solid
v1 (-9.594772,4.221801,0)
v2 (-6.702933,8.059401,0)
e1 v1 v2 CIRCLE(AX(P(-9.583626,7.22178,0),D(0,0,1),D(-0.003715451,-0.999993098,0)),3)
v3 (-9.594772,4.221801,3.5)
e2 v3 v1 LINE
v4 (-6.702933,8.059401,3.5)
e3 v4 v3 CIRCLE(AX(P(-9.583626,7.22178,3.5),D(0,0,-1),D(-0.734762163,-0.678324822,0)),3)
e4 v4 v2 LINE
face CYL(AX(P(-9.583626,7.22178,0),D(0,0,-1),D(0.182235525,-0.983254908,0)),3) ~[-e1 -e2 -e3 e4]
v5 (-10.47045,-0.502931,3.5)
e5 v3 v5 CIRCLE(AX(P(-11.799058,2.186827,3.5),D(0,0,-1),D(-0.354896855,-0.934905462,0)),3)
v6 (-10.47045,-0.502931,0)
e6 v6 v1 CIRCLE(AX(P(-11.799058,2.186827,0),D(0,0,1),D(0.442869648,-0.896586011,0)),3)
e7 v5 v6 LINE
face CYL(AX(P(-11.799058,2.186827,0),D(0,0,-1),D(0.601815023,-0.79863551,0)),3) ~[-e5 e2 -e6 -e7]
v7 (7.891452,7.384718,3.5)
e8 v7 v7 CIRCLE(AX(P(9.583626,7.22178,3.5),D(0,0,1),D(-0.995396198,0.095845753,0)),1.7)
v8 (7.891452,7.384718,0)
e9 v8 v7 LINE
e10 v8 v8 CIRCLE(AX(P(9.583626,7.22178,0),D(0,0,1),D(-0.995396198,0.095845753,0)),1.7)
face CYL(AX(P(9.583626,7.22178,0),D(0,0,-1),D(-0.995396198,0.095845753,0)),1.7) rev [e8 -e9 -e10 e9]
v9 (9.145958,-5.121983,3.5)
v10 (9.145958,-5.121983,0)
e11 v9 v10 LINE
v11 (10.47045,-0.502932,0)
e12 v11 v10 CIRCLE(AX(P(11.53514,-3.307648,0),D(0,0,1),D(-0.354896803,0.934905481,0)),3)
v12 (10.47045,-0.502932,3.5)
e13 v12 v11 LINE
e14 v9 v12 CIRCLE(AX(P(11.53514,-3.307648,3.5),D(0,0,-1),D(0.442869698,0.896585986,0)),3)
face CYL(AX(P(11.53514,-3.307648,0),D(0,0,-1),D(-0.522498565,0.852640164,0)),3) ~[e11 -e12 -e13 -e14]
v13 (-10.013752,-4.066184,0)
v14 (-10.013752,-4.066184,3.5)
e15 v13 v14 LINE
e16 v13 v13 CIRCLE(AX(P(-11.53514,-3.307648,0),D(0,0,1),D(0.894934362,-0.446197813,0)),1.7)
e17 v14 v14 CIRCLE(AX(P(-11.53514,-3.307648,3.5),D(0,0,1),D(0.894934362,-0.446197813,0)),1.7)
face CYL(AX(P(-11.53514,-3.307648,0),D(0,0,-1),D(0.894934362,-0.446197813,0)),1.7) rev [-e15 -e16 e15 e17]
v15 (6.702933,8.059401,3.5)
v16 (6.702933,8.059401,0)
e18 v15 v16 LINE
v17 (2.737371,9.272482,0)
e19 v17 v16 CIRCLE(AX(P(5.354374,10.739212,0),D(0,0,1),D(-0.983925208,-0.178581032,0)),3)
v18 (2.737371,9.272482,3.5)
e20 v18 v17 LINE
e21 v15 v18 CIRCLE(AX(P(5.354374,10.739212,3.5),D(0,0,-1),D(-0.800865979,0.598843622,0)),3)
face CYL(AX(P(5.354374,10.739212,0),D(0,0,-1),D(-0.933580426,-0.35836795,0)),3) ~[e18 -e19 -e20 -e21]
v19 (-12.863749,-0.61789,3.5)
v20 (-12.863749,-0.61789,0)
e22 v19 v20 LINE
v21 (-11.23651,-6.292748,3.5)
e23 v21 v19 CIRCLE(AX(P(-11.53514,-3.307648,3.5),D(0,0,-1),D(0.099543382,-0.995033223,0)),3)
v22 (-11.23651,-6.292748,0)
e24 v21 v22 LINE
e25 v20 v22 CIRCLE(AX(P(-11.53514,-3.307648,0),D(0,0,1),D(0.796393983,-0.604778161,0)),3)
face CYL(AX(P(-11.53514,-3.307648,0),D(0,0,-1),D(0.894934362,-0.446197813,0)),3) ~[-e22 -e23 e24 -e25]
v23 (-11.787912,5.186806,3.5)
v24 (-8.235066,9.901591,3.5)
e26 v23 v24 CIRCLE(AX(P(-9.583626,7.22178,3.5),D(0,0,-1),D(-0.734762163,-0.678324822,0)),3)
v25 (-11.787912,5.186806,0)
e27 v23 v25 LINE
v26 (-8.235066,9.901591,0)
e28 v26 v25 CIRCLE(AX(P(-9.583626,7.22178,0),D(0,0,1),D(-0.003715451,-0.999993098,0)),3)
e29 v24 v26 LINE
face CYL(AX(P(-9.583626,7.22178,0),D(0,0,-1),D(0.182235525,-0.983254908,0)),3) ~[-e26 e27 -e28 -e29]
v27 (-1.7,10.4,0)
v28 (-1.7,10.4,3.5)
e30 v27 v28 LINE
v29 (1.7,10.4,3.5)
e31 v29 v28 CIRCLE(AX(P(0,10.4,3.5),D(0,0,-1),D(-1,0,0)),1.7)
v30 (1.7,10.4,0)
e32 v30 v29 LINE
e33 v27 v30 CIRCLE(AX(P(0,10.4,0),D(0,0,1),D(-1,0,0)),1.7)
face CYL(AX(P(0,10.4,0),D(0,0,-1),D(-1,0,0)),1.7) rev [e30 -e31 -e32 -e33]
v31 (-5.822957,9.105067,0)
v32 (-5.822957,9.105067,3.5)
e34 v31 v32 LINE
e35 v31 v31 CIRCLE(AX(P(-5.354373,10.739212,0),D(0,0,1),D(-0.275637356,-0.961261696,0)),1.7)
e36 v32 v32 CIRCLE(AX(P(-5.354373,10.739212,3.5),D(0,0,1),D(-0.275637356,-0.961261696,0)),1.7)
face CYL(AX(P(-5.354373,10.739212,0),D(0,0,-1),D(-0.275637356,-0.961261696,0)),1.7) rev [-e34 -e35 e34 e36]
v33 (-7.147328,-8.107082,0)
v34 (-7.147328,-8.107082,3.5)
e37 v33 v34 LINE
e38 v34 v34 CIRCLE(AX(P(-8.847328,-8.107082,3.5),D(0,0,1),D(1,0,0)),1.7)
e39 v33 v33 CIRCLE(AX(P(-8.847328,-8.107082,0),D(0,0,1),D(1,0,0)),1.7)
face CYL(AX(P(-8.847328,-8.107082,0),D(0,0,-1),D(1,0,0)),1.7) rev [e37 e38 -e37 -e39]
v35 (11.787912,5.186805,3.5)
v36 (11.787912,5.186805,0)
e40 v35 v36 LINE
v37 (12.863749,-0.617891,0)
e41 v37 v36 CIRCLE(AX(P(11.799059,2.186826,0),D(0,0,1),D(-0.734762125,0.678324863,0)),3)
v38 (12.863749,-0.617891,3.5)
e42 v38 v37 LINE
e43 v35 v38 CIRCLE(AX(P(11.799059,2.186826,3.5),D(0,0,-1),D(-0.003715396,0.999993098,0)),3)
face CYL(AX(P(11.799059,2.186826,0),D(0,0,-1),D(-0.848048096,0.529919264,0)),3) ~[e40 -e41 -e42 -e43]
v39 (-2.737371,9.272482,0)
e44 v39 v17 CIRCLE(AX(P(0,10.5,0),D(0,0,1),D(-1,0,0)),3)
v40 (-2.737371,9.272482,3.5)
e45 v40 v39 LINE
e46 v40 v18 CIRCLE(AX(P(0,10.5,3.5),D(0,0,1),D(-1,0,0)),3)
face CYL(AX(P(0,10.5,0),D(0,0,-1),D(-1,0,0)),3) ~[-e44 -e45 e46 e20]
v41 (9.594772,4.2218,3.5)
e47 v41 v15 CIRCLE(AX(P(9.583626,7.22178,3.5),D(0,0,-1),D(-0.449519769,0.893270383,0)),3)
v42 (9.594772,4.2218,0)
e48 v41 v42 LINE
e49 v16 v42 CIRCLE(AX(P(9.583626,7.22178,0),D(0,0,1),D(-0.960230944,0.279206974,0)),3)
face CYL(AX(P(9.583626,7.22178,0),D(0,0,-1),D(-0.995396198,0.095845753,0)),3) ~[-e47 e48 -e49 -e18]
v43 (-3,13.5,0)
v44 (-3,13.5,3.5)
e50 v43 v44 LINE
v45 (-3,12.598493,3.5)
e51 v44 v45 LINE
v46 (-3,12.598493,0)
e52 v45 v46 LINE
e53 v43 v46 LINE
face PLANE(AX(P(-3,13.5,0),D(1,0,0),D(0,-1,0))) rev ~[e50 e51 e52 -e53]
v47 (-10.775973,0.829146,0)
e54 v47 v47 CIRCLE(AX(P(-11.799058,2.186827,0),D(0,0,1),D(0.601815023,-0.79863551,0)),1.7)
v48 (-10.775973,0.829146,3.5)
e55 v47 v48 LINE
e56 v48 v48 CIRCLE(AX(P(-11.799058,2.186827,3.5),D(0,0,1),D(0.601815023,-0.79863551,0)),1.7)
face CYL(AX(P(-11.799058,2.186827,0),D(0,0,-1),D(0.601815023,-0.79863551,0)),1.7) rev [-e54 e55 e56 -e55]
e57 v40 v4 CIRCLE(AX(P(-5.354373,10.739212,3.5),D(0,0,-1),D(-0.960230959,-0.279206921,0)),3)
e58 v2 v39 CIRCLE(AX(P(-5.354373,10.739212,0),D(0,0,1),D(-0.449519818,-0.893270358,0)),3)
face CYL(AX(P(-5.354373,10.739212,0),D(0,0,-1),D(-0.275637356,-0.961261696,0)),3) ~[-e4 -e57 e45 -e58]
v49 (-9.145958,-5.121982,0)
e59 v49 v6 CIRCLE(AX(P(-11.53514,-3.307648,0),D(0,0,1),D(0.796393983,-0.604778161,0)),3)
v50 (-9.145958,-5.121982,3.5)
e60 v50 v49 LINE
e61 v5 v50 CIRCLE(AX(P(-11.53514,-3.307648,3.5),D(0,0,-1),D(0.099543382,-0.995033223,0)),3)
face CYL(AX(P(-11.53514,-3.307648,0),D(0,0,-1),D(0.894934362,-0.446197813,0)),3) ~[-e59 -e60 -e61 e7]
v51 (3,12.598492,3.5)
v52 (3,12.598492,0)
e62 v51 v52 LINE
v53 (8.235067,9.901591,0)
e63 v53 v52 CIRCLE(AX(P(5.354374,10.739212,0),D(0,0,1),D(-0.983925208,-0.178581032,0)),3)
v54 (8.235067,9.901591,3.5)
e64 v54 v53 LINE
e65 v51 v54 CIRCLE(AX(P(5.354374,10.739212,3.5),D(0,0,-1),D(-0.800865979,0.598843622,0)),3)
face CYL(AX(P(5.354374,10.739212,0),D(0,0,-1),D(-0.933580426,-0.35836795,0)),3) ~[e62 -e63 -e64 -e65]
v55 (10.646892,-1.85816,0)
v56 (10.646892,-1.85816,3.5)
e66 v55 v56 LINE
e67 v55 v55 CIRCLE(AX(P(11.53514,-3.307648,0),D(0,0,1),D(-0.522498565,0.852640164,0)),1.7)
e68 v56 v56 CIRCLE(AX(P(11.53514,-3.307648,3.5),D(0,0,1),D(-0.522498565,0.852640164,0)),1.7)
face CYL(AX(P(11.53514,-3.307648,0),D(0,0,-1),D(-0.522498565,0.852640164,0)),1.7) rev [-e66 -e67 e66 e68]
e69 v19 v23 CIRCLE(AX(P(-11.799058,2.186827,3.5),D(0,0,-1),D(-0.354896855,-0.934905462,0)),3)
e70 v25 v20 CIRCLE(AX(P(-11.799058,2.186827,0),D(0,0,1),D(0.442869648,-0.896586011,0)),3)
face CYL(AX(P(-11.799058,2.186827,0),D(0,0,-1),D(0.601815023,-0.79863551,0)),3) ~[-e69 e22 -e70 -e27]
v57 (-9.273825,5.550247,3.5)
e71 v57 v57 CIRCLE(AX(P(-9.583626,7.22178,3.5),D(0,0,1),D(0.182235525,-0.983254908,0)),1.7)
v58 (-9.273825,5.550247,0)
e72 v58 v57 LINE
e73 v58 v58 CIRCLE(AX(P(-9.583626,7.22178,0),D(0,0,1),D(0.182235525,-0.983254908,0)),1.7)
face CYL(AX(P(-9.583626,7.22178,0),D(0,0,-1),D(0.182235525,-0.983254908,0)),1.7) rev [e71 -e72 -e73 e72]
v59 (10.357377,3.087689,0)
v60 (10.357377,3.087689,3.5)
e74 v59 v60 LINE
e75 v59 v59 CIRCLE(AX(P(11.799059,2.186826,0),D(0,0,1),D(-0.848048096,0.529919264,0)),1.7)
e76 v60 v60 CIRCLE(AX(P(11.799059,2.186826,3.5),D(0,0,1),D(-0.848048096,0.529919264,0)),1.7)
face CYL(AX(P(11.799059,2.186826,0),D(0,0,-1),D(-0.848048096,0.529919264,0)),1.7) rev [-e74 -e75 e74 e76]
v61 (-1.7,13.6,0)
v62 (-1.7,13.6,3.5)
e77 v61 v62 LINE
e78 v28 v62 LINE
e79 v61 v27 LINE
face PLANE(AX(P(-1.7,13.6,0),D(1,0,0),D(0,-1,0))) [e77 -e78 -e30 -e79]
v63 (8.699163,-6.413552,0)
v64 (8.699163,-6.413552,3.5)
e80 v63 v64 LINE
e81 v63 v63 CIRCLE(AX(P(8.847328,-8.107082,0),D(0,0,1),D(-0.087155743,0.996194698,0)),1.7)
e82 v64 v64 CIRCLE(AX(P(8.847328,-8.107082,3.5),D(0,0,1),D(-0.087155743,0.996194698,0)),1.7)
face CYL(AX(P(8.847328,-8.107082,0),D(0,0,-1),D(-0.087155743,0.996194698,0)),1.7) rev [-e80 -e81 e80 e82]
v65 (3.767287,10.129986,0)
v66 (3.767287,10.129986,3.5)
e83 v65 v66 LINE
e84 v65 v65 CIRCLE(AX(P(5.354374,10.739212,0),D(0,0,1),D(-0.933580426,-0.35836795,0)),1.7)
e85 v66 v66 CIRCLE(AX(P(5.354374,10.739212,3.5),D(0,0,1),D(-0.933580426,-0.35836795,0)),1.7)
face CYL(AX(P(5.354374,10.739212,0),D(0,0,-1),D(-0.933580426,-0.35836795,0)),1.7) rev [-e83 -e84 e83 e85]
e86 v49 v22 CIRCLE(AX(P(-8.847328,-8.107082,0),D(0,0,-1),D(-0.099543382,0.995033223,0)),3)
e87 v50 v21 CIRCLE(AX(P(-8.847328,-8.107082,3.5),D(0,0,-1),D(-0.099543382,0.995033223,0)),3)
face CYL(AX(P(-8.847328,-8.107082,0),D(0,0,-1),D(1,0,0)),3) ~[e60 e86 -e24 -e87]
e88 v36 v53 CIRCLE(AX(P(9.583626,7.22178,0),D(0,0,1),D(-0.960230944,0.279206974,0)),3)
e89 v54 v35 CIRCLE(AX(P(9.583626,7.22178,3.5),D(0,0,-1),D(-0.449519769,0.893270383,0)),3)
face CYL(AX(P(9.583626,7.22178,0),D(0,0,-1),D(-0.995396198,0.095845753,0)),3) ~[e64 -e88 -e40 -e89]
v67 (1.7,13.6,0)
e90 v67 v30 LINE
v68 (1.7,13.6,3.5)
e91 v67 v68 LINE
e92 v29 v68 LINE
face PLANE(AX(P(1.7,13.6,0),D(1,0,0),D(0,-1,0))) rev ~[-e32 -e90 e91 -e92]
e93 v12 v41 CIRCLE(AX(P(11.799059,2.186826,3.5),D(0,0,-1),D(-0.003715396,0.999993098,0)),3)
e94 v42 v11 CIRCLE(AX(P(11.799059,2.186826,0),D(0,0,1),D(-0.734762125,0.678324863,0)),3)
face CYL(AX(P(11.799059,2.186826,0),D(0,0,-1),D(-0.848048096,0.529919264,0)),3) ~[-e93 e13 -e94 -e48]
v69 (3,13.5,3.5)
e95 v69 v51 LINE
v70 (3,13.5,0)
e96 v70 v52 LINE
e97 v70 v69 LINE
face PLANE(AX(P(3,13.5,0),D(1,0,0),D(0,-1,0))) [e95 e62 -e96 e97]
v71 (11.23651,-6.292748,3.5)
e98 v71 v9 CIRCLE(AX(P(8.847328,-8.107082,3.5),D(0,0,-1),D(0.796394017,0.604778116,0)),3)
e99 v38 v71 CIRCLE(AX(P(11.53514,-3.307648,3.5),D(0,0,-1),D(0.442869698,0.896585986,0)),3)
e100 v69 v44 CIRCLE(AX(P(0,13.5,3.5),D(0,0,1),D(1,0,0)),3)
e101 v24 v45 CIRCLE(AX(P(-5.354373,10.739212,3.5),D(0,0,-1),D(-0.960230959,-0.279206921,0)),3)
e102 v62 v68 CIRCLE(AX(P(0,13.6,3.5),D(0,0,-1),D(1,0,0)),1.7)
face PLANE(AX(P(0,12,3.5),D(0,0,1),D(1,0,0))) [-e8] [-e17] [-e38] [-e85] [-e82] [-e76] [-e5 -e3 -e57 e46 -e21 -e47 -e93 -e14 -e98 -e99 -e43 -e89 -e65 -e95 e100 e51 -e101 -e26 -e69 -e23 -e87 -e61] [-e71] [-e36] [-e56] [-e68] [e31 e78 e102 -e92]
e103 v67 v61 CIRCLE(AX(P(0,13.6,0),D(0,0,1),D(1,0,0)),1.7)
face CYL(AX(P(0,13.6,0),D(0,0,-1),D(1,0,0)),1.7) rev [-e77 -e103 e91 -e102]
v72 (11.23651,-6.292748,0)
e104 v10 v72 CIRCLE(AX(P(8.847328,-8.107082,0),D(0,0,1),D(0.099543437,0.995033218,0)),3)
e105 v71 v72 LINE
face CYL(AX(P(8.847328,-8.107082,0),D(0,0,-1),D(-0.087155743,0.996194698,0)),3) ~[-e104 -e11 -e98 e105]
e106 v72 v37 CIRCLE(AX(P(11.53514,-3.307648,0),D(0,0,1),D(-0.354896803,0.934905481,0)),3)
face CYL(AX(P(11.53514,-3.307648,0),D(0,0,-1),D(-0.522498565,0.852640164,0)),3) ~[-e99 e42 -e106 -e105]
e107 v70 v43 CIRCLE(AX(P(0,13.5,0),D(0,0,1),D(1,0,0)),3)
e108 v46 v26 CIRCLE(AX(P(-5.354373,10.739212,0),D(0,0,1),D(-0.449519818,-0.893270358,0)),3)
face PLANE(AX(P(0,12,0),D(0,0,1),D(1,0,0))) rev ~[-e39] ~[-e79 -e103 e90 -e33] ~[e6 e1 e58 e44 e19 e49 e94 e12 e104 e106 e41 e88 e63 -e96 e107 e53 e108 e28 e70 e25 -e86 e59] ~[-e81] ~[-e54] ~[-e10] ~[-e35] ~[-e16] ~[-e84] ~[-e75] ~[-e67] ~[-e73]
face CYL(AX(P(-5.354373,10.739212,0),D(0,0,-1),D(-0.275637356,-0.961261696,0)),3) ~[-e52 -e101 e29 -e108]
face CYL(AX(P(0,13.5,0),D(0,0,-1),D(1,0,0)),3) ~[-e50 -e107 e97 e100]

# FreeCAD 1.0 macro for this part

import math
import FreeCAD as App
import Part
import Sketcher
Q = App.Units.Quantity

doc = App.newDocument("Part")
body = doc.addObject("PartDesign::Body", "Body")

# Sketch on XY plane
sketch1 = body.newObject("Sketcher::SketchObject", "Sketch")
sketch1.AttachmentSupport = (doc.getObject("XY_Plane"), [""])
sketch1.MapMode = "FlatFace"
sketch1.addGeometry(Part.Circle(App.Vector(-8.8, -8.1, 0), App.Vector(0, 0, 1), 3), False)
sketch1.addGeometry(Part.Circle(App.Vector(-8.8, -8.1, 0), App.Vector(0, 0, 1), 1.7), False)
sketch1.addConstraint(Sketcher.Constraint("Coincident", 1, 3, 0, 3))
sketch1.addConstraint(Sketcher.Constraint("Diameter", 0, Q("6 mm")))
sketch1.addConstraint(Sketcher.Constraint("Diameter", 1, Q("3.4 mm")))
sketch1.addConstraint(Sketcher.Constraint("DistanceX", 0, 3, -1, 1, Q("8.847328 mm")))
sketch1.addConstraint(Sketcher.Constraint("DistanceY", 0, 3, -1, 1, Q("8.107082 mm")))
pad1 = body.newObject("PartDesign::Pad", "Pad")
pad1.Profile = sketch1
pad1.Length = 3.5
doc.recompute()

polarpattern = body.newObject("PartDesign::PolarPattern", "PolarPattern")
polarpattern.Originals = [pad1]
polarpattern.Axis = (doc.getObject("Z_Axis"), [""])
polarpattern.Angle = 265
polarpattern.Occurrences = 11
polarpattern.Reversed = True
body.Tip = polarpattern

# Sketch on XY plane
sketch2 = body.newObject("Sketcher::SketchObject", "Sketch001")
sketch2.AttachmentSupport = (doc.getObject("XY_Plane"), [""])
sketch2.MapMode = "FlatFace"
sketch2.addGeometry(Part.ArcOfCircle(Part.Circle(App.Vector(0, 13.5, 0), App.Vector(0, 0, 1), 3), math.radians(0), math.radians(180)), False)
sketch2.addGeometry(Part.LineSegment(App.Vector(-3, 13.5, 0), App.Vector(-3, 10.5, 0)), False)
sketch2.addGeometry(Part.ArcOfCircle(Part.Circle(App.Vector(0, 10.5, 0), App.Vector(0, 0, 1), 3), math.radians(180), math.radians(360)), False)
sketch2.addGeometry(Part.LineSegment(App.Vector(3, 10.5, 0), App.Vector(3, 13.5, 0)), False)
sketch2.addConstraint(Sketcher.Constraint("Tangent", 0, 2, 1, 1))
sketch2.addConstraint(Sketcher.Constraint("Tangent", 1, 2, 2, 1))
sketch2.addConstraint(Sketcher.Constraint("Tangent", 2, 2, 3, 1))
sketch2.addConstraint(Sketcher.Constraint("Tangent", 3, 2, 0, 1))
sketch2.addConstraint(Sketcher.Constraint("Vertical", 1))
sketch2.addConstraint(Sketcher.Constraint("Vertical", 3))
sketch2.addConstraint(Sketcher.Constraint("PointOnObject", 0, 3, -2))
sketch2.addConstraint(Sketcher.Constraint("Radius", 0, Q("3 mm")))
sketch2.addConstraint(Sketcher.Constraint("DistanceY", 1, 2, 1, 1, Q("3 mm")))
sketch2.addConstraint(Sketcher.Constraint("DistanceY", -1, 1, 0, 3, Q("13.5 mm")))
pad2 = body.newObject("PartDesign::Pad", "Pad001")
pad2.Profile = sketch2
pad2.Length = 3.5

# Sketch on XY plane
sketch3 = body.newObject("Sketcher::SketchObject", "Sketch002")
sketch3.AttachmentSupport = (doc.getObject("XY_Plane"), [""])
sketch3.MapMode = "FlatFace"
sketch3.addGeometry(Part.ArcOfCircle(Part.Circle(App.Vector(0, 13.6, 0), App.Vector(0, 0, 1), 1.7), math.radians(0), math.radians(180)), False)
sketch3.addGeometry(Part.LineSegment(App.Vector(-1.7, 13.6, 0), App.Vector(-1.7, 10.4, 0)), False)
sketch3.addGeometry(Part.ArcOfCircle(Part.Circle(App.Vector(0, 10.4, 0), App.Vector(0, 0, 1), 1.7), math.radians(180), math.radians(360)), False)
sketch3.addGeometry(Part.LineSegment(App.Vector(1.7, 10.4, 0), App.Vector(1.7, 13.6, 0)), False)
sketch3.addConstraint(Sketcher.Constraint("Tangent", 0, 2, 1, 1))
sketch3.addConstraint(Sketcher.Constraint("Tangent", 1, 2, 2, 1))
sketch3.addConstraint(Sketcher.Constraint("Tangent", 2, 2, 3, 1))
sketch3.addConstraint(Sketcher.Constraint("Tangent", 3, 2, 0, 1))
sketch3.addConstraint(Sketcher.Constraint("Vertical", 1))
sketch3.addConstraint(Sketcher.Constraint("Vertical", 3))
sketch3.addConstraint(Sketcher.Constraint("PointOnObject", 0, 3, -2))
sketch3.addConstraint(Sketcher.Constraint("Radius", 0, Q("1.7 mm")))
sketch3.addConstraint(Sketcher.Constraint("DistanceY", 1, 2, 1, 1, Q("3.2 mm")))
sketch3.addConstraint(Sketcher.Constraint("DistanceY", -1, 1, 0, 3, Q("13.6 mm")))
pocket1 = body.newObject("PartDesign::Pocket", "Pocket")
pocket1.Profile = sketch3
pocket1.Type = "ThroughAll"
pocket1.Midplane = True

doc.recompute()
